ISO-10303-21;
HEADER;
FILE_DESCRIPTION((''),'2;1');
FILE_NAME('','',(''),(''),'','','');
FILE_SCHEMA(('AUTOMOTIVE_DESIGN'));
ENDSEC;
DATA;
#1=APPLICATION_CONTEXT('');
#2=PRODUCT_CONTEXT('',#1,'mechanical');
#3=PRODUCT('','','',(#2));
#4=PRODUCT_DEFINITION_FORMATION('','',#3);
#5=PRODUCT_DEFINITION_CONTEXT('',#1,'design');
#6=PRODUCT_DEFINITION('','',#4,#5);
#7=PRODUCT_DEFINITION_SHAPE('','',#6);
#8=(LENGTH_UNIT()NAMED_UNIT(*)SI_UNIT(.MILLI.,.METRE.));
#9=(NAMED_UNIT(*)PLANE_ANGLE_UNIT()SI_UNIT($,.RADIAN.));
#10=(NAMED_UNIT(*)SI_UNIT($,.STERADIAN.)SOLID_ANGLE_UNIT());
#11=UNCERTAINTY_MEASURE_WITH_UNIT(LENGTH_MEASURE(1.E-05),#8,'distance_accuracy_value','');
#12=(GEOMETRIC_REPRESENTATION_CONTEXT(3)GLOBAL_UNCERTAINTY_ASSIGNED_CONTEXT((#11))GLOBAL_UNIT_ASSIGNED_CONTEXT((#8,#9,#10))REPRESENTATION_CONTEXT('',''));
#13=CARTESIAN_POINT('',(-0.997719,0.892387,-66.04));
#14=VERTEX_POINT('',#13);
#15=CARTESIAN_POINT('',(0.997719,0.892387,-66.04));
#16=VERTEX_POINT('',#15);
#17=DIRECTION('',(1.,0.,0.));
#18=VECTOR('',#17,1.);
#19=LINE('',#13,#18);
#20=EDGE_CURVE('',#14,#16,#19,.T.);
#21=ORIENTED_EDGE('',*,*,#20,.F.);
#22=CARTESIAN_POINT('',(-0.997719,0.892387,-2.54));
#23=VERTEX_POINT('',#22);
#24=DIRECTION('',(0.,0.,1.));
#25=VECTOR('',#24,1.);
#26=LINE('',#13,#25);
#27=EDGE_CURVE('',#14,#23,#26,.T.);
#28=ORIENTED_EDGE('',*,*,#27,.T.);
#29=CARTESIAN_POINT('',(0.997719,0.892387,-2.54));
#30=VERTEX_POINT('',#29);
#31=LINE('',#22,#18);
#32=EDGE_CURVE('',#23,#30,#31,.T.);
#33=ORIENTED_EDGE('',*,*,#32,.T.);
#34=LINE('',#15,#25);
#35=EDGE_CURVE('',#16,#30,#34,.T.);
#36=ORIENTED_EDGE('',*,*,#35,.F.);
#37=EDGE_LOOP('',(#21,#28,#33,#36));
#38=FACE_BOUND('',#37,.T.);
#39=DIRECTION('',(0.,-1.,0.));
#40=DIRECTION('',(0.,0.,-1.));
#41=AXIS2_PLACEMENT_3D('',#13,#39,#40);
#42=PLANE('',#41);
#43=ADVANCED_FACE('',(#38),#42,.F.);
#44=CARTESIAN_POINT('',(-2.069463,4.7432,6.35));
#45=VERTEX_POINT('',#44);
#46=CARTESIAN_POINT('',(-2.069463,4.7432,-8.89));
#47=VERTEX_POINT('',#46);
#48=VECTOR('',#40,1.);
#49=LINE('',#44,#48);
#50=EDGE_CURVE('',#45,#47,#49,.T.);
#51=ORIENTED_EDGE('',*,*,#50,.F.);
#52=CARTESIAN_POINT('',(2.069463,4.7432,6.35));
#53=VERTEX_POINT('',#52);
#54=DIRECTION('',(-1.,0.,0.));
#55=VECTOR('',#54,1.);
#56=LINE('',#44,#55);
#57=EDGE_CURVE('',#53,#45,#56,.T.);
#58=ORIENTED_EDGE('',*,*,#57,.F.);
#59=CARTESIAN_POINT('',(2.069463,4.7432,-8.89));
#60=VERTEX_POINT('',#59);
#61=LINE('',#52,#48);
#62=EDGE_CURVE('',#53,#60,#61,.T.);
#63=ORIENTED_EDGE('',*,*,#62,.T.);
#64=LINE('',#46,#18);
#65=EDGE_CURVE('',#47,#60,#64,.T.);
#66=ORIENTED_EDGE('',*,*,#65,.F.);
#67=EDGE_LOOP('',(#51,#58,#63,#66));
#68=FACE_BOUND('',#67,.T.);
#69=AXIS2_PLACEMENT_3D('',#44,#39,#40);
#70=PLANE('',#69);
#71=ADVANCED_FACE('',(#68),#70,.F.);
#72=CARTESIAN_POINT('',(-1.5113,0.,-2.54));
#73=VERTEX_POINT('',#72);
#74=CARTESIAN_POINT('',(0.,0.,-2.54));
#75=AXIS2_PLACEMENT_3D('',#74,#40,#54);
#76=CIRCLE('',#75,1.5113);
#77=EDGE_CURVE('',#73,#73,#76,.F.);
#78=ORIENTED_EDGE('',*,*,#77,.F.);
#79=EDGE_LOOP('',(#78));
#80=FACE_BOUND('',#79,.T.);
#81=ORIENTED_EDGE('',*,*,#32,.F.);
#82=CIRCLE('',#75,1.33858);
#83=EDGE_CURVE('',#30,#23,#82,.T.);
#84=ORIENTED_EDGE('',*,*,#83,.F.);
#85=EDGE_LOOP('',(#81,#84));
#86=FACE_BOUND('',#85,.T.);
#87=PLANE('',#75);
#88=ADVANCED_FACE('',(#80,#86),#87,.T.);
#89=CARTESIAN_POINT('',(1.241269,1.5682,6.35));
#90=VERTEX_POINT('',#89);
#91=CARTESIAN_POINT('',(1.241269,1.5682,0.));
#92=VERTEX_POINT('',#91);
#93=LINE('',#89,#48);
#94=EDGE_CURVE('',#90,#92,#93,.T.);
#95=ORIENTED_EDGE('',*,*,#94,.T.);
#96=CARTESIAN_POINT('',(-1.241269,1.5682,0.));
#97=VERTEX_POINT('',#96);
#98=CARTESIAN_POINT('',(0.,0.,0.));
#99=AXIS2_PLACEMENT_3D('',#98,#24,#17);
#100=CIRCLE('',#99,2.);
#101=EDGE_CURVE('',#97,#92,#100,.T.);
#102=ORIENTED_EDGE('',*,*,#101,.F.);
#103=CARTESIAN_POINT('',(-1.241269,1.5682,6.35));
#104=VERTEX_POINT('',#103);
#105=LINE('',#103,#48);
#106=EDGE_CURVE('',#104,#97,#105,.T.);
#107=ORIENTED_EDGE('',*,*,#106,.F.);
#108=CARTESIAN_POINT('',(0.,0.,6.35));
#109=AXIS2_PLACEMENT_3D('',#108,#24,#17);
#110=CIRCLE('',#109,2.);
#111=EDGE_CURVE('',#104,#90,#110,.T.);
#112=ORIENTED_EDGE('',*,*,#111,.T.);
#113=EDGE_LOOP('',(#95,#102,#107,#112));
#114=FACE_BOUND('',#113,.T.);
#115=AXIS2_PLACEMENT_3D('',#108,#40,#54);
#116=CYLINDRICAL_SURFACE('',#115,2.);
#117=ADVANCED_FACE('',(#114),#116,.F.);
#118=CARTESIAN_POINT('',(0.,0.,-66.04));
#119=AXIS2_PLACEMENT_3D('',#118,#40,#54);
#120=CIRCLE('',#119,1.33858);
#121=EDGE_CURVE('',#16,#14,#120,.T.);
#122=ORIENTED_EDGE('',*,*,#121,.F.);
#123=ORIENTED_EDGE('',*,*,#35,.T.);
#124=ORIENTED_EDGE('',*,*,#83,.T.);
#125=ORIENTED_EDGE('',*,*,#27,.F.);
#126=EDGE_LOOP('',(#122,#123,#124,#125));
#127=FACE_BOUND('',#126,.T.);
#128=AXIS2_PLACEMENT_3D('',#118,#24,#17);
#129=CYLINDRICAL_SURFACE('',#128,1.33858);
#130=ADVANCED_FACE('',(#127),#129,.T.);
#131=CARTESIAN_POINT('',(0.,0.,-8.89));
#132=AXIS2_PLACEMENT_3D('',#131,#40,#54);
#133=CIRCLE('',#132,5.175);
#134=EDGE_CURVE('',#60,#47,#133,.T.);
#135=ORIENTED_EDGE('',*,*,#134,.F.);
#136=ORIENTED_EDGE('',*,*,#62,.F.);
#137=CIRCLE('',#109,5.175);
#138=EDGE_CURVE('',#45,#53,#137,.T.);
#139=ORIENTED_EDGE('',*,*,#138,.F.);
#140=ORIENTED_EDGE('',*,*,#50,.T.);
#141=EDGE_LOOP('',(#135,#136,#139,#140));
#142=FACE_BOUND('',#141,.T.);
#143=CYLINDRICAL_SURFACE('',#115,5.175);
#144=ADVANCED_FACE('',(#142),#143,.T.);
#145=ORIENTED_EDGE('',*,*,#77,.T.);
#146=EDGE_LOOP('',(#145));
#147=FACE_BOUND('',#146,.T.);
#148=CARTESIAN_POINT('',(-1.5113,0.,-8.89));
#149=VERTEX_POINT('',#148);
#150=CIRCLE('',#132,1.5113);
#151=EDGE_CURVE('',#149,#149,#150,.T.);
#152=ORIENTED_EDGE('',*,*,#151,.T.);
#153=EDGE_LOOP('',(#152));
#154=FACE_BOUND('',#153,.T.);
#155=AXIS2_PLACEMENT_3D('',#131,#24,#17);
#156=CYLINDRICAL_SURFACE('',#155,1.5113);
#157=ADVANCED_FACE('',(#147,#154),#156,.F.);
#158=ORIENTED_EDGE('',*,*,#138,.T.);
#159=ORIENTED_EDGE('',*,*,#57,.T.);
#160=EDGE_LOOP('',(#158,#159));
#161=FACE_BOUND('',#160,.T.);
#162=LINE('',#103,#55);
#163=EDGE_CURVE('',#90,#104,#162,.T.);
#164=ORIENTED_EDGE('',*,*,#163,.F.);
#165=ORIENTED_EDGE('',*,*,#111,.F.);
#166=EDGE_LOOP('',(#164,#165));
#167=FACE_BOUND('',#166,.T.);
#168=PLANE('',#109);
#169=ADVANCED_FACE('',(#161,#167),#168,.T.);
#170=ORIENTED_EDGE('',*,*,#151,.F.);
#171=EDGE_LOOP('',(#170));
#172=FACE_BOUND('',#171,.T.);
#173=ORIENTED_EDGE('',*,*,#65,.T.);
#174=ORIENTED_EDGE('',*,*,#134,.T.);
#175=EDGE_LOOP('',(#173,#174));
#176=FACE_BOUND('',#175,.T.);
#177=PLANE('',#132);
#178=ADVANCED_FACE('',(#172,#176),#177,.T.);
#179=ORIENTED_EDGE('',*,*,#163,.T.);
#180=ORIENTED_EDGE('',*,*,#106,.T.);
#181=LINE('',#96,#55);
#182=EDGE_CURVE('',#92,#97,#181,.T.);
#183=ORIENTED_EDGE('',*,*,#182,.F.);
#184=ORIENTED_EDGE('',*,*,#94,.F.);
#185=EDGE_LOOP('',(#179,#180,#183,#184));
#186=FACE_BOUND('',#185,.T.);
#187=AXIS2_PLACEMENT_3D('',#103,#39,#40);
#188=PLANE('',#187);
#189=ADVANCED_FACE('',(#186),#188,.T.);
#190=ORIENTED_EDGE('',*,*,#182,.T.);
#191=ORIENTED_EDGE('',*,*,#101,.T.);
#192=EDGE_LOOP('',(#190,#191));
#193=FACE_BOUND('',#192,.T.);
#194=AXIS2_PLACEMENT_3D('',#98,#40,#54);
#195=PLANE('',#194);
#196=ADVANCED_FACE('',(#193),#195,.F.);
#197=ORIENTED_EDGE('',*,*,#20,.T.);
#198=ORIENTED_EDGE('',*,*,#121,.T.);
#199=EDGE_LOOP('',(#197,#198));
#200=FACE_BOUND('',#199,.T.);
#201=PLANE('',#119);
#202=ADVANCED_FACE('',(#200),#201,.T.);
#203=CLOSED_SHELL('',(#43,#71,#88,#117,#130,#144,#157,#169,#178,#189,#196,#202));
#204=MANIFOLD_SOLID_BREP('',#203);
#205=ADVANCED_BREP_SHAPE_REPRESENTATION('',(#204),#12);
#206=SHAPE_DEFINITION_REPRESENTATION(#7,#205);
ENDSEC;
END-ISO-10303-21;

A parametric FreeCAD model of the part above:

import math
import FreeCAD as App
import Part
import Sketcher

V = App.Vector
Q = App.Units.Quantity

doc = App.newDocument("Part")
body = doc.addObject("PartDesign::Body", "Body")

# Sketch on XY plane
sketch1 = doc.addObject("Sketcher::SketchObject", "Sketch")
body.addObject(sketch1)
sketch1.AttachmentSupport = (doc.XY_Plane, [""])
sketch1.MapMode = "FlatFace"
sketch1.addGeometry(Part.LineSegment(V(2.1, 4.7, 0), V(-2.1, 4.7, 0)), False)
sketch1.addGeometry(Part.ArcOfCircle(Part.Circle(V(0, 0, 0), V(0, 0, 1), 5.2), math.radians(114), math.radians(426)), False)
sketch1.addGeometry(Part.LineSegment(V(-1.2, 1.6, 0), V(1.2, 1.6, 0)), False)
sketch1.addGeometry(Part.ArcOfCircle(Part.Circle(V(0, 0, 0), V(0, 0, 1), 2), math.radians(128), math.radians(412)), False)
sketch1.addConstraint(Sketcher.Constraint("Coincident", 0, 1, 1, 2))
sketch1.addConstraint(Sketcher.Constraint("Coincident", 1, 1, 0, 2))
sketch1.addConstraint(Sketcher.Constraint("Coincident", 2, 1, 3, 1))
sketch1.addConstraint(Sketcher.Constraint("Coincident", 3, 2, 2, 2))
sketch1.addConstraint(Sketcher.Constraint("Horizontal", 0))
sketch1.addConstraint(Sketcher.Constraint("Horizontal", 2))
sketch1.addConstraint(Sketcher.Constraint("Coincident", 1, 3, -1, 1))
sketch1.addConstraint(Sketcher.Constraint("Coincident", 3, 3, -1, 1))
sketch1.addConstraint(Sketcher.Constraint("Radius", 1, 5.175))
sketch1.addConstraint(Sketcher.Constraint("Radius", 3, 2.0))
sketch1.addConstraint(Sketcher.Constraint("DistanceY", 2, 1, 1, 1, Q("0.125 in")))
sketch1.addConstraint(Sketcher.Constraint("DistanceY", -1, 1, 0, 1, 4.7432))
pad1 = doc.addObject("PartDesign::Pad", "Pad")
body.addObject(pad1)
pad1.Profile = sketch1
pad1.Length = Q("0.25 in")

# Sketch on XY plane
sketch2 = doc.addObject("Sketcher::SketchObject", "Sketch001")
body.addObject(sketch2)
sketch2.AttachmentSupport = (doc.XY_Plane, [""])
sketch2.MapMode = "FlatFace"
sketch2.AttachmentOffset = App.Placement(V(0, 0, -0.1 * 25.4), App.Rotation())
sketch2.addGeometry(Part.LineSegment(V(-2.1, 4.7, 0), V(2.1, 4.7, 0)), False)
sketch2.addGeometry(Part.ArcOfCircle(Part.Circle(V(0, 0, 0), V(0, 0, 1), 5.2), math.radians(114), math.radians(426)), False)
sketch2.addConstraint(Sketcher.Constraint("Coincident", 0, 1, 1, 1))
sketch2.addConstraint(Sketcher.Constraint("Coincident", 1, 2, 0, 2))
sketch2.addConstraint(Sketcher.Constraint("Horizontal", 0))
sketch2.addConstraint(Sketcher.Constraint("Coincident", 1, 3, -1, 1))
sketch2.addConstraint(Sketcher.Constraint("Radius", 1, 5.175))
sketch2.addConstraint(Sketcher.Constraint("DistanceY", -1, 1, 0, 1, 4.7432))
pad2 = doc.addObject("PartDesign::Pad", "Pad001")
body.addObject(pad2)
pad2.Profile = sketch2
pad2.Length = Q("0.1 in")

# Sketch on XY plane
sketch3 = doc.addObject("Sketcher::SketchObject", "Sketch002")
body.addObject(sketch3)
sketch3.AttachmentSupport = (doc.XY_Plane, [""])
sketch3.MapMode = "FlatFace"
sketch3.AttachmentOffset = App.Placement(V(0, 0, -0.35 * 25.4), App.Rotation())
sketch3.addGeometry(Part.LineSegment(V(-2.1, 4.7, 0), V(2.1, 4.7, 0)), False)
sketch3.addGeometry(Part.ArcOfCircle(Part.Circle(V(0, 0, 0), V(0, 0, 1), 5.2), math.radians(114), math.radians(426)), False)
sketch3.addGeometry(Part.Circle(V(0, 0, 0), V(0, 0, 1), 1.5), False)
sketch3.addConstraint(Sketcher.Constraint("Coincident", 0, 1, 1, 1))
sketch3.addConstraint(Sketcher.Constraint("Coincident", 1, 2, 0, 2))
sketch3.addConstraint(Sketcher.Constraint("Horizontal", 0))
sketch3.addConstraint(Sketcher.Constraint("Coincident", 1, 3, -1, 1))
sketch3.addConstraint(Sketcher.Constraint("Coincident", 2, 3, -1, 1))
sketch3.addConstraint(Sketcher.Constraint("Diameter", 2, Q("0.119 in")))
sketch3.addConstraint(Sketcher.Constraint("Radius", 1, 5.175))
sketch3.addConstraint(Sketcher.Constraint("DistanceY", -1, 1, 0, 1, 4.7432))
pad3 = doc.addObject("PartDesign::Pad", "Pad002")
body.addObject(pad3)
pad3.Profile = sketch3
pad3.Length = Q("0.25 in")

# Sketch on XY plane
sketch4 = doc.addObject("Sketcher::SketchObject", "Sketch003")
body.addObject(sketch4)
sketch4.AttachmentSupport = (doc.XY_Plane, [""])
sketch4.MapMode = "FlatFace"
sketch4.AttachmentOffset = App.Placement(V(0, 0, -0.1 * 25.4), App.Rotation())
sketch4.addGeometry(Part.LineSegment(V(-1, 0.9, 0), V(1, 0.9, 0)), False)
sketch4.addGeometry(Part.ArcOfCircle(Part.Circle(V(0, 0, 0), V(0, 0, 1), 1.3), math.radians(138), math.radians(402)), False)
sketch4.addConstraint(Sketcher.Constraint("Coincident", 0, 1, 1, 1))
sketch4.addConstraint(Sketcher.Constraint("Coincident", 1, 2, 0, 2))
sketch4.addConstraint(Sketcher.Constraint("Horizontal", 0))
sketch4.addConstraint(Sketcher.Constraint("Coincident", 1, 3, -1, 1))
sketch4.addConstraint(Sketcher.Constraint("Radius", 1, Q("0.0527 in")))
sketch4.addConstraint(Sketcher.Constraint("DistanceX", 0, 1, 0, 2, 1.995437))
pad4 = doc.addObject("PartDesign::Pad", "Pad003")
body.addObject(pad4)
pad4.Profile = sketch4
pad4.Length = Q("2.5 in")
pad4.Reversed = True

doc.recompute()
